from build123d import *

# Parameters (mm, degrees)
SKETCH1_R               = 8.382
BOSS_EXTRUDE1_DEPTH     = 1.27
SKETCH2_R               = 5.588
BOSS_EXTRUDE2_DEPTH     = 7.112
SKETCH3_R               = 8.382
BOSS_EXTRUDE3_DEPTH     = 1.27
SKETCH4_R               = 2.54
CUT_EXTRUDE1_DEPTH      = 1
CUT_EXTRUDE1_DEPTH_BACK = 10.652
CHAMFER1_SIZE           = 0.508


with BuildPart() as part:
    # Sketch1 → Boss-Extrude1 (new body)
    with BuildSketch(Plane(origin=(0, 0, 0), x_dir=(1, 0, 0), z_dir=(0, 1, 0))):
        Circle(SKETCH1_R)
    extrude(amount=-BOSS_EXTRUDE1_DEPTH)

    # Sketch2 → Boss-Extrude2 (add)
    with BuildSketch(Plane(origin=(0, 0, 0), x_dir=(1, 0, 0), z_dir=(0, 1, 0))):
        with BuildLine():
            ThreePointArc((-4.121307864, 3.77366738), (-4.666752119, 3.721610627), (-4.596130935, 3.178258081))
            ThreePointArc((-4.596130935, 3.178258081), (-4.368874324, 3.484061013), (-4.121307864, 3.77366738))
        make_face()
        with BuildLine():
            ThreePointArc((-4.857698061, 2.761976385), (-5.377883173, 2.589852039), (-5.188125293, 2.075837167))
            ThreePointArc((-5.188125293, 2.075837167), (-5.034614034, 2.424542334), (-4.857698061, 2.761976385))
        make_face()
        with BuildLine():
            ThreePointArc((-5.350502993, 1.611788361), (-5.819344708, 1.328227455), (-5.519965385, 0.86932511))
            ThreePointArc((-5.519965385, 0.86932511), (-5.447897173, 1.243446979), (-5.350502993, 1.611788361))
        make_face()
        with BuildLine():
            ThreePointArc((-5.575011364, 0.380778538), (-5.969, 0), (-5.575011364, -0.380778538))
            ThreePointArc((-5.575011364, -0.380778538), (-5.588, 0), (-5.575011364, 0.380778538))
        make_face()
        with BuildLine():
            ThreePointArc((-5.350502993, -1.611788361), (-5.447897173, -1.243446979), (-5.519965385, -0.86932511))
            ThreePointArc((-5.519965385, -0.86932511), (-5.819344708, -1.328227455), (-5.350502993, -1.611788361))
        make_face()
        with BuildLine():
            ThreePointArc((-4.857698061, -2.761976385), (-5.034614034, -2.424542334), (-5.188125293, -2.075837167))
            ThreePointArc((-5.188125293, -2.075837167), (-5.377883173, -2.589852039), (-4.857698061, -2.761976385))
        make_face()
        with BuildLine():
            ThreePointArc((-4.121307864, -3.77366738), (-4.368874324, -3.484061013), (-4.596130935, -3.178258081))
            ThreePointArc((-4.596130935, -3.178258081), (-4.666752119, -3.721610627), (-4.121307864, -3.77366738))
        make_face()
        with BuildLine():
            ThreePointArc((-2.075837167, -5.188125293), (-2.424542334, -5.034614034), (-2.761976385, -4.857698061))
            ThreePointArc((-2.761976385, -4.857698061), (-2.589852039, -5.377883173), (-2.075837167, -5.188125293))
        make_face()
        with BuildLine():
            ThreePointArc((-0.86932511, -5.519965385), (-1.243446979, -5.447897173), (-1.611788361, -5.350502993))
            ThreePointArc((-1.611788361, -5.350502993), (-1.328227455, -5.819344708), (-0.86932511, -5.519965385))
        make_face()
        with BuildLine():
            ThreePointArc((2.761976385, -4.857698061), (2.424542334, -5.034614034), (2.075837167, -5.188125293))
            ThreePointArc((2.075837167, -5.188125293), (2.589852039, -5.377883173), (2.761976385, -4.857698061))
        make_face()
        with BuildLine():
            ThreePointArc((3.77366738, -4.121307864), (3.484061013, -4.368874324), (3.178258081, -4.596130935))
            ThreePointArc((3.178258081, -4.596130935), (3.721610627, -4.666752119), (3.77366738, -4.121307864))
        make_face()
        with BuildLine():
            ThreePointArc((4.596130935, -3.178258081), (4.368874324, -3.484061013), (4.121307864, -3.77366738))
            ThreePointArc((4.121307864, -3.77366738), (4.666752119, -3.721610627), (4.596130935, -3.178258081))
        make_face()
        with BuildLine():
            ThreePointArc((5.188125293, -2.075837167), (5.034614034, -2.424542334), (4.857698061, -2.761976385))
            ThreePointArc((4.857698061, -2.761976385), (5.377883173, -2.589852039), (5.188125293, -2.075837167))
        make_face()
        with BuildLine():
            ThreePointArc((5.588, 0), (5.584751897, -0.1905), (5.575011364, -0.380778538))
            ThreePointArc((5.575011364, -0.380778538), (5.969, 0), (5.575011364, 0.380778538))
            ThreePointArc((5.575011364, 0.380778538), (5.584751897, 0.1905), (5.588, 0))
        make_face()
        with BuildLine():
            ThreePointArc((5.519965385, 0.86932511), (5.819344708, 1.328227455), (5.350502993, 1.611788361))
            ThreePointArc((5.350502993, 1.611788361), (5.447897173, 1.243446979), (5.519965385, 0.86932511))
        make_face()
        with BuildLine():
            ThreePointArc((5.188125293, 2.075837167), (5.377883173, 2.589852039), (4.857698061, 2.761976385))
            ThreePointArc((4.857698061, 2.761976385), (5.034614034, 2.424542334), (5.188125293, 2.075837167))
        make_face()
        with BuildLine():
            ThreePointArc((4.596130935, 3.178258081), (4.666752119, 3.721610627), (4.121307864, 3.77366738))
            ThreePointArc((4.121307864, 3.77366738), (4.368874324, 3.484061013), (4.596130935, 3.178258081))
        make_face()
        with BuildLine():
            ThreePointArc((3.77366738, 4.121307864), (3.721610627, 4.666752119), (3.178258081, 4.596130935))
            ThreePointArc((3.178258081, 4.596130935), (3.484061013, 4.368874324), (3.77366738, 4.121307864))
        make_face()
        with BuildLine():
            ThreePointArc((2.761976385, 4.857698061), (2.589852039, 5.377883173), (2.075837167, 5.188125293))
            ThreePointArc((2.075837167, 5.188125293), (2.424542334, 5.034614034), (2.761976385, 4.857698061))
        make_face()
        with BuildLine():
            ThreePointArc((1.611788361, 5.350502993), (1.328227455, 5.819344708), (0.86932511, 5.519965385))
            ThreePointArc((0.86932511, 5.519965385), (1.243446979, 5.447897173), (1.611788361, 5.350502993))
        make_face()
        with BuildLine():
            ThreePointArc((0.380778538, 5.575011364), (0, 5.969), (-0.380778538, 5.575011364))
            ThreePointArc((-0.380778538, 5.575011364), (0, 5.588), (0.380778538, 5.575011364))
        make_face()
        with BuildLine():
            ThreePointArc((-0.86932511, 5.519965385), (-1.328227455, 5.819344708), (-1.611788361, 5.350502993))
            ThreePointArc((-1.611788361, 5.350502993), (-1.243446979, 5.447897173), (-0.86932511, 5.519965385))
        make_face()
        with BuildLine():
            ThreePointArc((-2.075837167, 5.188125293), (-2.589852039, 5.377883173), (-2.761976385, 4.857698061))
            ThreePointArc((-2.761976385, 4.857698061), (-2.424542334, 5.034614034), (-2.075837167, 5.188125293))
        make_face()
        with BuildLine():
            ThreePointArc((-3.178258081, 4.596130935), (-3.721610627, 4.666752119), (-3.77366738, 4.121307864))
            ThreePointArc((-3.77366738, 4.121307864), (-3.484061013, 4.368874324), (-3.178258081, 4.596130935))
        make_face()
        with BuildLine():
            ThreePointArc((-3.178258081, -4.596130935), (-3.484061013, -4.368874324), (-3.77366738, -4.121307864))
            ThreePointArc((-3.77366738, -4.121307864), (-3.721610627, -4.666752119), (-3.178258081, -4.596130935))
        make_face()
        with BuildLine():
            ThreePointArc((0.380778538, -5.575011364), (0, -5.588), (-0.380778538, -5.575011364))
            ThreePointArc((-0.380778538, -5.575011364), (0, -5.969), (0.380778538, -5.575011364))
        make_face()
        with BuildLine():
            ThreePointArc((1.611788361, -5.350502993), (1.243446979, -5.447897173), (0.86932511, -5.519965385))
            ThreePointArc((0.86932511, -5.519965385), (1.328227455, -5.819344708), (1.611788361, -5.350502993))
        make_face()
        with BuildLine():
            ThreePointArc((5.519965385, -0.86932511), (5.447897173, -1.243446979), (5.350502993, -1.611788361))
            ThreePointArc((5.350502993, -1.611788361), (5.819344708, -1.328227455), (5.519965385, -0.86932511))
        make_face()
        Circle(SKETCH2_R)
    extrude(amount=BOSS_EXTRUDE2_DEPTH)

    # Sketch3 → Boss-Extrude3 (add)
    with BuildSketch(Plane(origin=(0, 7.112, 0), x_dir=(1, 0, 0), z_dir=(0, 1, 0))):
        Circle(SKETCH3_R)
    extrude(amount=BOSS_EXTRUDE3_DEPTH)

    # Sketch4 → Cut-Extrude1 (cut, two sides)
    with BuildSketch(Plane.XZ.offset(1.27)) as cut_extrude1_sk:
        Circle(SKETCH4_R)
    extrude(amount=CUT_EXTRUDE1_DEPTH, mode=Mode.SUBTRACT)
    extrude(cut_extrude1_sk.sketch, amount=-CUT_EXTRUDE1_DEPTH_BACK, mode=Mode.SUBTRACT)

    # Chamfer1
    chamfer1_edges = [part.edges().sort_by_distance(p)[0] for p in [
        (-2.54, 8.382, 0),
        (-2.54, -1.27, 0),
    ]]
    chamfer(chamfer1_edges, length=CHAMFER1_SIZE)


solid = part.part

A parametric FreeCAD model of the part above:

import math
import FreeCAD as App
import Part
import Sketcher
from FreeCAD import Vector
Q = App.Units.Quantity


def edges_at(feature, points):
    """Names of the edges that pass closest to the given points."""
    edges = feature.Shape.Edges
    near = lambda p: min(range(len(edges)), key=lambda i: edges[i].distToShape(Part.Vertex(*p))[0])
    return sorted({f"Edge{near(p) + 1}" for p in points})

doc = App.newDocument("Part")
body = doc.addObject("PartDesign::Body", "Body")

# Sketch on XZ plane
sketch1 = body.newObject("Sketcher::SketchObject", "Sketch")
sketch1.AttachmentSupport = (doc.getObject("XZ_Plane"), [""])
sketch1.MapMode = "FlatFace"
sketch1.addGeometry(Part.Circle(Vector(0, 0, 0), Vector(0, 0, 1), 8), False)
sketch1.addConstraint(Sketcher.Constraint("Coincident", 0, 3, -1, 1))
sketch1.addConstraint(Sketcher.Constraint("Diameter", 0, Q("0.66 in")))
pad1 = body.newObject("PartDesign::Pad", "Pad")
pad1.Profile = sketch1
pad1.Length = Q("0.05 in")

# Sketch on XZ plane
sketch2 = body.newObject("Sketcher::SketchObject", "Sketch001")
sketch2.AttachmentSupport = (doc.getObject("XZ_Plane"), [""])
sketch2.MapMode = "FlatFace"
sketch2.addGeometry(Part.ArcOfCircle(Part.Circle(Vector(-4.37, -3.48, 0), Vector(0, 0, 1), 0.38), math.radians(127), math.radians(311)), False)
sketch2.addGeometry(Part.ArcOfCircle(Part.Circle(Vector(0, 0, 0), Vector(0, 0, 1), 5.59), math.radians(-150.38), math.radians(-145.34)), False)
sketch2.addGeometry(Part.ArcOfCircle(Part.Circle(Vector(-5.03, -2.42, 0), Vector(0, 0, 1), 0.38), math.radians(114), math.radians(298)), False)
sketch2.addGeometry(Part.ArcOfCircle(Part.Circle(Vector(0, 0, 0), Vector(0, 0, 1), 5.59), math.radians(-163.24), math.radians(-158.19)), False)
sketch2.addGeometry(Part.ArcOfCircle(Part.Circle(Vector(-5.45, -1.24, 0), Vector(0, 0, 1), 0.38), math.radians(101), math.radians(285)), False)
sketch2.addGeometry(Part.ArcOfCircle(Part.Circle(Vector(0, 0, 0), Vector(0, 0, 1), 5.59), math.radians(-176.09), math.radians(-171.05)), False)
sketch2.addGeometry(Part.ArcOfCircle(Part.Circle(Vector(-5.59, 0, 0), Vector(0, 0, 1), 0.38), math.radians(88), math.radians(272)), False)
sketch2.addGeometry(Part.ArcOfCircle(Part.Circle(Vector(0, 0, 0), Vector(0, 0, 1), 5.59), math.radians(171.05), math.radians(176.09)), False)
sketch2.addGeometry(Part.ArcOfCircle(Part.Circle(Vector(-5.45, 1.24, 0), Vector(0, 0, 1), 0.38), math.radians(75), math.radians(259)), False)
sketch2.addGeometry(Part.ArcOfCircle(Part.Circle(Vector(0, 0, 0), Vector(0, 0, 1), 5.59), math.radians(158.19), math.radians(163.24)), False)
sketch2.addGeometry(Part.ArcOfCircle(Part.Circle(Vector(-5.03, 2.42, 0), Vector(0, 0, 1), 0.38), math.radians(62), math.radians(246)), False)
sketch2.addGeometry(Part.ArcOfCircle(Part.Circle(Vector(0, 0, 0), Vector(0, 0, 1), 5.59), math.radians(145.34), math.radians(150.38)), False)
sketch2.addGeometry(Part.ArcOfCircle(Part.Circle(Vector(-4.37, 3.48, 0), Vector(0, 0, 1), 0.38), math.radians(49), math.radians(233)), False)
sketch2.addGeometry(Part.ArcOfCircle(Part.Circle(Vector(0, 0, 0), Vector(0, 0, 1), 5.59), math.radians(132.48), math.radians(137.52)), False)
sketch2.addGeometry(Part.ArcOfCircle(Part.Circle(Vector(-3.48, 4.37, 0), Vector(0, 0, 1), 0.38), math.radians(37), math.radians(221)), False)
sketch2.addGeometry(Part.ArcOfCircle(Part.Circle(Vector(0, 0, 0), Vector(0, 0, 1), 5.59), math.radians(119.62), math.radians(124.66)), False)
sketch2.addGeometry(Part.ArcOfCircle(Part.Circle(Vector(-2.42, 5.03, 0), Vector(0, 0, 1), 0.38), math.radians(24), math.radians(208)), False)
sketch2.addGeometry(Part.ArcOfCircle(Part.Circle(Vector(0, 0, 0), Vector(0, 0, 1), 5.59), math.radians(106.76), math.radians(111.81)), False)
sketch2.addGeometry(Part.ArcOfCircle(Part.Circle(Vector(-1.24, 5.45, 0), Vector(0, 0, 1), 0.38), math.radians(11), math.radians(195)), False)
sketch2.addGeometry(Part.ArcOfCircle(Part.Circle(Vector(0, 0, 0), Vector(0, 0, 1), 5.59), math.radians(93.91), math.radians(98.95)), False)
sketch2.addGeometry(Part.ArcOfCircle(Part.Circle(Vector(0, 5.59, 0), Vector(0, 0, 1), 0.38), math.radians(-2), math.radians(182)), False)
sketch2.addGeometry(Part.ArcOfCircle(Part.Circle(Vector(0, 0, 0), Vector(0, 0, 1), 5.59), math.radians(81.05), math.radians(86.09)), False)
sketch2.addGeometry(Part.ArcOfCircle(Part.Circle(Vector(1.24, 5.45, 0), Vector(0, 0, 1), 0.38), math.radians(-15), math.radians(169)), False)
sketch2.addGeometry(Part.ArcOfCircle(Part.Circle(Vector(0, 0, 0), Vector(0, 0, 1), 5.59), math.radians(68.19), math.radians(73.24)), False)
sketch2.addGeometry(Part.ArcOfCircle(Part.Circle(Vector(2.42, 5.03, 0), Vector(0, 0, 1), 0.38), math.radians(-28), math.radians(156)), False)
sketch2.addGeometry(Part.ArcOfCircle(Part.Circle(Vector(0, 0, 0), Vector(0, 0, 1), 5.59), math.radians(55.34), math.radians(60.38)), False)
sketch2.addGeometry(Part.ArcOfCircle(Part.Circle(Vector(3.48, 4.37, 0), Vector(0, 0, 1), 0.38), math.radians(-41), math.radians(143)), False)
sketch2.addGeometry(Part.ArcOfCircle(Part.Circle(Vector(0, 0, 0), Vector(0, 0, 1), 5.59), math.radians(42.48), math.radians(47.52)), False)
sketch2.addGeometry(Part.ArcOfCircle(Part.Circle(Vector(4.37, 3.48, 0), Vector(0, 0, 1), 0.38), math.radians(-53), math.radians(131)), False)
sketch2.addGeometry(Part.ArcOfCircle(Part.Circle(Vector(0, 0, 0), Vector(0, 0, 1), 5.59), math.radians(29.62), math.radians(34.66)), False)
sketch2.addGeometry(Part.ArcOfCircle(Part.Circle(Vector(5.03, 2.42, 0), Vector(0, 0, 1), 0.38), math.radians(-66), math.radians(118)), False)
sketch2.addGeometry(Part.ArcOfCircle(Part.Circle(Vector(0, 0, 0), Vector(0, 0, 1), 5.59), math.radians(16.76), math.radians(21.81)), False)
sketch2.addGeometry(Part.ArcOfCircle(Part.Circle(Vector(5.45, 1.24, 0), Vector(0, 0, 1), 0.38), math.radians(-79), math.radians(105)), False)
sketch2.addGeometry(Part.ArcOfCircle(Part.Circle(Vector(0, 0, 0), Vector(0, 0, 1), 5.59), math.radians(3.91), math.radians(8.95)), False)
sketch2.addGeometry(Part.ArcOfCircle(Part.Circle(Vector(5.59, 0, 0), Vector(0, 0, 1), 0.38), math.radians(-92), math.radians(92)), False)
sketch2.addGeometry(Part.ArcOfCircle(Part.Circle(Vector(0, 0, 0), Vector(0, 0, 1), 5.59), math.radians(-8.95), math.radians(-3.91)), False)
sketch2.addGeometry(Part.ArcOfCircle(Part.Circle(Vector(5.45, -1.24, 0), Vector(0, 0, 1), 0.38), math.radians(-105), math.radians(79)), False)
sketch2.addGeometry(Part.ArcOfCircle(Part.Circle(Vector(0, 0, 0), Vector(0, 0, 1), 5.59), math.radians(-21.81), math.radians(-16.76)), False)
sketch2.addGeometry(Part.ArcOfCircle(Part.Circle(Vector(5.03, -2.42, 0), Vector(0, 0, 1), 0.38), math.radians(-118), math.radians(66)), False)
sketch2.addGeometry(Part.ArcOfCircle(Part.Circle(Vector(0, 0, 0), Vector(0, 0, 1), 5.59), math.radians(-34.66), math.radians(-29.62)), False)
sketch2.addGeometry(Part.ArcOfCircle(Part.Circle(Vector(4.37, -3.48, 0), Vector(0, 0, 1), 0.38), math.radians(-131), math.radians(53)), False)
sketch2.addGeometry(Part.ArcOfCircle(Part.Circle(Vector(0, 0, 0), Vector(0, 0, 1), 5.59), math.radians(-47.52), math.radians(-42.48)), False)
sketch2.addGeometry(Part.ArcOfCircle(Part.Circle(Vector(3.48, -4.37, 0), Vector(0, 0, 1), 0.38), math.radians(-143), math.radians(41)), False)
sketch2.addGeometry(Part.ArcOfCircle(Part.Circle(Vector(0, 0, 0), Vector(0, 0, 1), 5.59), math.radians(-60.38), math.radians(-55.34)), False)
sketch2.addGeometry(Part.ArcOfCircle(Part.Circle(Vector(2.42, -5.03, 0), Vector(0, 0, 1), 0.38), math.radians(-156), math.radians(28)), False)
sketch2.addGeometry(Part.ArcOfCircle(Part.Circle(Vector(0, 0, 0), Vector(0, 0, 1), 5.59), math.radians(-73.24), math.radians(-68.19)), False)
sketch2.addGeometry(Part.ArcOfCircle(Part.Circle(Vector(1.24, -5.45, 0), Vector(0, 0, 1), 0.38), math.radians(-169), math.radians(15)), False)
sketch2.addGeometry(Part.ArcOfCircle(Part.Circle(Vector(0, 0, 0), Vector(0, 0, 1), 5.59), math.radians(-86.09), math.radians(-81.05)), False)
sketch2.addGeometry(Part.ArcOfCircle(Part.Circle(Vector(0, -5.59, 0), Vector(0, 0, 1), 0.38), math.radians(178), math.radians(362)), False)
sketch2.addGeometry(Part.ArcOfCircle(Part.Circle(Vector(0, 0, 0), Vector(0, 0, 1), 5.59), math.radians(-98.95), math.radians(-93.91)), False)
sketch2.addGeometry(Part.ArcOfCircle(Part.Circle(Vector(-1.24, -5.45, 0), Vector(0, 0, 1), 0.38), math.radians(165), math.radians(349)), False)
sketch2.addGeometry(Part.ArcOfCircle(Part.Circle(Vector(0, 0, 0), Vector(0, 0, 1), 5.59), math.radians(-111.81), math.radians(-106.76)), False)
sketch2.addGeometry(Part.ArcOfCircle(Part.Circle(Vector(-2.42, -5.03, 0), Vector(0, 0, 1), 0.38), math.radians(152), math.radians(336)), False)
sketch2.addGeometry(Part.ArcOfCircle(Part.Circle(Vector(0, 0, 0), Vector(0, 0, 1), 5.59), math.radians(-124.66), math.radians(-119.62)), False)
sketch2.addGeometry(Part.ArcOfCircle(Part.Circle(Vector(-3.48, -4.37, 0), Vector(0, 0, 1), 0.38), math.radians(139), math.radians(323)), False)
sketch2.addGeometry(Part.ArcOfCircle(Part.Circle(Vector(0, 0, 0), Vector(0, 0, 1), 5.59), math.radians(-137.52), math.radians(-132.48)), False)
sketch2.addConstraint(Sketcher.Constraint("Coincident", 0, 1, 1, 2))
sketch2.addConstraint(Sketcher.Constraint("Coincident", 1, 1, 2, 2))
sketch2.addConstraint(Sketcher.Constraint("Coincident", 2, 1, 3, 2))
sketch2.addConstraint(Sketcher.Constraint("Coincident", 3, 1, 4, 2))
sketch2.addConstraint(Sketcher.Constraint("Coincident", 4, 1, 5, 2))
sketch2.addConstraint(Sketcher.Constraint("Coincident", 5, 1, 6, 2))
sketch2.addConstraint(Sketcher.Constraint("Coincident", 6, 1, 7, 2))
sketch2.addConstraint(Sketcher.Constraint("Coincident", 7, 1, 8, 2))
sketch2.addConstraint(Sketcher.Constraint("Coincident", 8, 1, 9, 2))
sketch2.addConstraint(Sketcher.Constraint("Coincident", 9, 1, 10, 2))
sketch2.addConstraint(Sketcher.Constraint("Coincident", 10, 1, 11, 2))
sketch2.addConstraint(Sketcher.Constraint("Coincident", 11, 1, 12, 2))
sketch2.addConstraint(Sketcher.Constraint("Coincident", 12, 1, 13, 2))
sketch2.addConstraint(Sketcher.Constraint("Coincident", 13, 1, 14, 2))
sketch2.addConstraint(Sketcher.Constraint("Coincident", 14, 1, 15, 2))
sketch2.addConstraint(Sketcher.Constraint("Coincident", 15, 1, 16, 2))
sketch2.addConstraint(Sketcher.Constraint("Coincident", 16, 1, 17, 2))
sketch2.addConstraint(Sketcher.Constraint("Coincident", 17, 1, 18, 2))
sketch2.addConstraint(Sketcher.Constraint("Coincident", 18, 1, 19, 2))
sketch2.addConstraint(Sketcher.Constraint("Coincident", 19, 1, 20, 2))
sketch2.addConstraint(Sketcher.Constraint("Coincident", 20, 1, 21, 2))
sketch2.addConstraint(Sketcher.Constraint("Coincident", 21, 1, 22, 2))
sketch2.addConstraint(Sketcher.Constraint("Coincident", 22, 1, 23, 2))
sketch2.addConstraint(Sketcher.Constraint("Coincident", 23, 1, 24, 2))
sketch2.addConstraint(Sketcher.Constraint("Coincident", 24, 1, 25, 2))
sketch2.addConstraint(Sketcher.Constraint("Coincident", 25, 1, 26, 2))
sketch2.addConstraint(Sketcher.Constraint("Coincident", 26, 1, 27, 2))
sketch2.addConstraint(Sketcher.Constraint("Coincident", 27, 1, 28, 2))
sketch2.addConstraint(Sketcher.Constraint("Coincident", 28, 1, 29, 2))
sketch2.addConstraint(Sketcher.Constraint("Coincident", 29, 1, 30, 2))
sketch2.addConstraint(Sketcher.Constraint("Coincident", 30, 1, 31, 2))
sketch2.addConstraint(Sketcher.Constraint("Coincident", 31, 1, 32, 2))
sketch2.addConstraint(Sketcher.Constraint("Coincident", 32, 1, 33, 2))
sketch2.addConstraint(Sketcher.Constraint("Coincident", 33, 1, 34, 2))
sketch2.addConstraint(Sketcher.Constraint("Coincident", 34, 1, 35, 2))
sketch2.addConstraint(Sketcher.Constraint("Coincident", 35, 1, 36, 2))
sketch2.addConstraint(Sketcher.Constraint("Coincident", 36, 1, 37, 2))
sketch2.addConstraint(Sketcher.Constraint("Coincident", 37, 1, 38, 2))
sketch2.addConstraint(Sketcher.Constraint("Coincident", 38, 1, 39, 2))
sketch2.addConstraint(Sketcher.Constraint("Coincident", 39, 1, 40, 2))
sketch2.addConstraint(Sketcher.Constraint("Coincident", 40, 1, 41, 2))
sketch2.addConstraint(Sketcher.Constraint("Coincident", 41, 1, 42, 2))
sketch2.addConstraint(Sketcher.Constraint("Coincident", 42, 1, 43, 2))
sketch2.addConstraint(Sketcher.Constraint("Coincident", 43, 1, 44, 2))
sketch2.addConstraint(Sketcher.Constraint("Coincident", 44, 1, 45, 2))
sketch2.addConstraint(Sketcher.Constraint("Coincident", 45, 1, 46, 2))
sketch2.addConstraint(Sketcher.Constraint("Coincident", 46, 1, 47, 2))
sketch2.addConstraint(Sketcher.Constraint("Coincident", 47, 1, 48, 2))
sketch2.addConstraint(Sketcher.Constraint("Coincident", 48, 1, 49, 2))
sketch2.addConstraint(Sketcher.Constraint("Coincident", 49, 1, 50, 2))
sketch2.addConstraint(Sketcher.Constraint("Coincident", 50, 1, 51, 2))
sketch2.addConstraint(Sketcher.Constraint("Coincident", 51, 1, 52, 2))
sketch2.addConstraint(Sketcher.Constraint("Coincident", 52, 1, 53, 2))
sketch2.addConstraint(Sketcher.Constraint("Coincident", 53, 1, 54, 2))
sketch2.addConstraint(Sketcher.Constraint("Coincident", 54, 1, 55, 2))
sketch2.addConstraint(Sketcher.Constraint("Coincident", 55, 1, 0, 2))
sketch2.addConstraint(Sketcher.Constraint("Coincident", 1, 3, -1, 1))
sketch2.addConstraint(Sketcher.Constraint("Coincident", 3, 3, -1, 1))
sketch2.addConstraint(Sketcher.Constraint("Coincident", 5, 3, -1, 1))
sketch2.addConstraint(Sketcher.Constraint("Coincident", 7, 3, -1, 1))
sketch2.addConstraint(Sketcher.Constraint("Coincident", 9, 3, -1, 1))
sketch2.addConstraint(Sketcher.Constraint("Coincident", 11, 3, -1, 1))
sketch2.addConstraint(Sketcher.Constraint("Coincident", 13, 3, -1, 1))
sketch2.addConstraint(Sketcher.Constraint("Coincident", 15, 3, -1, 1))
sketch2.addConstraint(Sketcher.Constraint("Coincident", 17, 3, -1, 1))
sketch2.addConstraint(Sketcher.Constraint("Coincident", 19, 3, -1, 1))
sketch2.addConstraint(Sketcher.Constraint("Coincident", 21, 3, -1, 1))
sketch2.addConstraint(Sketcher.Constraint("Coincident", 23, 3, -1, 1))
sketch2.addConstraint(Sketcher.Constraint("Coincident", 25, 3, -1, 1))
sketch2.addConstraint(Sketcher.Constraint("Coincident", 27, 3, -1, 1))
sketch2.addConstraint(Sketcher.Constraint("Coincident", 29, 3, -1, 1))
sketch2.addConstraint(Sketcher.Constraint("Coincident", 31, 3, -1, 1))
sketch2.addConstraint(Sketcher.Constraint("Coincident", 33, 3, -1, 1))
sketch2.addConstraint(Sketcher.Constraint("Coincident", 35, 3, -1, 1))
sketch2.addConstraint(Sketcher.Constraint("Coincident", 37, 3, -1, 1))
sketch2.addConstraint(Sketcher.Constraint("Coincident", 39, 3, -1, 1))
sketch2.addConstraint(Sketcher.Constraint("Coincident", 41, 3, -1, 1))
sketch2.addConstraint(Sketcher.Constraint("Coincident", 43, 3, -1, 1))
sketch2.addConstraint(Sketcher.Constraint("Coincident", 45, 3, -1, 1))
sketch2.addConstraint(Sketcher.Constraint("Coincident", 47, 3, -1, 1))
sketch2.addConstraint(Sketcher.Constraint("Coincident", 49, 3, -1, 1))
sketch2.addConstraint(Sketcher.Constraint("Coincident", 51, 3, -1, 1))
sketch2.addConstraint(Sketcher.Constraint("Coincident", 53, 3, -1, 1))
sketch2.addConstraint(Sketcher.Constraint("Coincident", 55, 3, -1, 1))
sketch2.addConstraint(Sketcher.Constraint("Equal", 0, 2))
sketch2.addConstraint(Sketcher.Constraint("Equal", 1, 3))
sketch2.addConstraint(Sketcher.Constraint("Equal", 2, 4))
sketch2.addConstraint(Sketcher.Constraint("Equal", 3, 5))
sketch2.addConstraint(Sketcher.Constraint("Equal", 4, 6))
sketch2.addConstraint(Sketcher.Constraint("Equal", 5, 7))
sketch2.addConstraint(Sketcher.Constraint("Equal", 6, 8))
sketch2.addConstraint(Sketcher.Constraint("Equal", 7, 9))
sketch2.addConstraint(Sketcher.Constraint("Equal", 8, 10))
sketch2.addConstraint(Sketcher.Constraint("Equal", 9, 11))
sketch2.addConstraint(Sketcher.Constraint("Equal", 10, 12))
sketch2.addConstraint(Sketcher.Constraint("Equal", 11, 13))
sketch2.addConstraint(Sketcher.Constraint("Equal", 12, 14))
sketch2.addConstraint(Sketcher.Constraint("Equal", 13, 15))
sketch2.addConstraint(Sketcher.Constraint("Equal", 14, 16))
sketch2.addConstraint(Sketcher.Constraint("Equal", 15, 17))
sketch2.addConstraint(Sketcher.Constraint("Equal", 16, 18))
sketch2.addConstraint(Sketcher.Constraint("Equal", 17, 19))
sketch2.addConstraint(Sketcher.Constraint("Equal", 18, 20))
sketch2.addConstraint(Sketcher.Constraint("Equal", 19, 21))
sketch2.addConstraint(Sketcher.Constraint("Equal", 20, 22))
sketch2.addConstraint(Sketcher.Constraint("Equal", 21, 23))
sketch2.addConstraint(Sketcher.Constraint("Equal", 22, 24))
sketch2.addConstraint(Sketcher.Constraint("Equal", 23, 25))
sketch2.addConstraint(Sketcher.Constraint("Equal", 24, 26))
sketch2.addConstraint(Sketcher.Constraint("Equal", 25, 27))
sketch2.addConstraint(Sketcher.Constraint("Equal", 26, 28))
sketch2.addConstraint(Sketcher.Constraint("Equal", 27, 29))
sketch2.addConstraint(Sketcher.Constraint("Equal", 28, 30))
sketch2.addConstraint(Sketcher.Constraint("Equal", 29, 31))
sketch2.addConstraint(Sketcher.Constraint("Equal", 30, 32))
sketch2.addConstraint(Sketcher.Constraint("Equal", 31, 33))
sketch2.addConstraint(Sketcher.Constraint("Equal", 32, 34))
sketch2.addConstraint(Sketcher.Constraint("Equal", 33, 35))
sketch2.addConstraint(Sketcher.Constraint("Equal", 34, 36))
sketch2.addConstraint(Sketcher.Constraint("Equal", 35, 37))
sketch2.addConstraint(Sketcher.Constraint("Equal", 36, 38))
sketch2.addConstraint(Sketcher.Constraint("Equal", 37, 39))
sketch2.addConstraint(Sketcher.Constraint("Equal", 38, 40))
sketch2.addConstraint(Sketcher.Constraint("Equal", 39, 41))
sketch2.addConstraint(Sketcher.Constraint("Equal", 40, 42))
sketch2.addConstraint(Sketcher.Constraint("Equal", 41, 43))
sketch2.addConstraint(Sketcher.Constraint("Equal", 42, 44))
sketch2.addConstraint(Sketcher.Constraint("Equal", 43, 45))
sketch2.addConstraint(Sketcher.Constraint("Equal", 44, 46))
sketch2.addConstraint(Sketcher.Constraint("Equal", 45, 47))
sketch2.addConstraint(Sketcher.Constraint("Equal", 46, 48))
sketch2.addConstraint(Sketcher.Constraint("Equal", 47, 49))
sketch2.addConstraint(Sketcher.Constraint("Equal", 48, 50))
sketch2.addConstraint(Sketcher.Constraint("Equal", 49, 51))
sketch2.addConstraint(Sketcher.Constraint("Equal", 50, 52))
sketch2.addConstraint(Sketcher.Constraint("Equal", 51, 53))
sketch2.addConstraint(Sketcher.Constraint("Equal", 52, 54))
sketch2.addConstraint(Sketcher.Constraint("Equal", 53, 55))
sketch2.addConstraint(Sketcher.Constraint("Symmetric", 0, 3, 28, 3, -1, 1))
sketch2.addConstraint(Sketcher.Constraint("Symmetric", 2, 3, 30, 3, -1, 1))
sketch2.addConstraint(Sketcher.Constraint("Symmetric", 4, 3, 32, 3, -1, 1))
sketch2.addConstraint(Sketcher.Constraint("Symmetric", 6, 3, 34, 3, -1, 1))
sketch2.addConstraint(Sketcher.Constraint("Symmetric", 8, 3, 36, 3, -1, 1))
sketch2.addConstraint(Sketcher.Constraint("Symmetric", 10, 3, 38, 3, -1, 1))
sketch2.addConstraint(Sketcher.Constraint("Symmetric", 12, 3, 40, 3, -1, 1))
sketch2.addConstraint(Sketcher.Constraint("Symmetric", 14, 3, 42, 3, -1, 1))
sketch2.addConstraint(Sketcher.Constraint("Symmetric", 16, 3, 44, 3, -1, 1))
sketch2.addConstraint(Sketcher.Constraint("Symmetric", 18, 3, 46, 3, -1, 1))
sketch2.addConstraint(Sketcher.Constraint("Symmetric", 20, 3, 48, 3, -1, 1))
sketch2.addConstraint(Sketcher.Constraint("Symmetric", 22, 3, 50, 3, -1, 1))
sketch2.addConstraint(Sketcher.Constraint("Symmetric", 24, 3, 52, 3, -1, 1))
sketch2.addConstraint(Sketcher.Constraint("Symmetric", 26, 3, 54, 3, -1, 1))
sketch2.addConstraint(Sketcher.Constraint("Symmetric", 18, 3, 22, 3, -2))
sketch2.addConstraint(Sketcher.Constraint("Symmetric", 16, 3, 24, 3, -2))
sketch2.addConstraint(Sketcher.Constraint("Symmetric", 14, 3, 26, 3, -2))
sketch2.addConstraint(Sketcher.Constraint("Symmetric", 12, 3, 28, 3, -2))
sketch2.addConstraint(Sketcher.Constraint("Symmetric", 10, 3, 30, 3, -2))
sketch2.addConstraint(Sketcher.Constraint("Symmetric", 8, 3, 32, 3, -2))
sketch2.addConstraint(Sketcher.Constraint("PointOnObject", 6, 3, -1))
sketch2.addConstraint(Sketcher.Constraint("PointOnObject", 20, 3, -2))
sketch2.addConstraint(Sketcher.Constraint("Radius", 1, Q("0.22 in")))
sketch2.addConstraint(Sketcher.Constraint("Radius", 0, Q("0.015 in")))
sketch2.addConstraint(Sketcher.Constraint("DistanceX", 6, 3, -1, 1, Q("0.22 in")))
sketch2.addConstraint(Sketcher.Constraint("DistanceY", -1, 1, 20, 3, Q("0.22 in")))
sketch2.addConstraint(Sketcher.Constraint("DistanceX", 1, 1, -1, 1, 4.857698))
sketch2.addConstraint(Sketcher.Constraint("DistanceY", -1, 1, 15, 1, 4.857698))
sketch2.addConstraint(Sketcher.Constraint("DistanceY", 0, 3, -1, 1, 3.484061))
sketch2.addConstraint(Sketcher.Constraint("DistanceX", 14, 3, -1, 1, 3.484061))
sketch2.addConstraint(Sketcher.Constraint("DistanceX", 0, 1, -1, 1, 4.596131))
sketch2.addConstraint(Sketcher.Constraint("DistanceY", 3, 1, -1, 1, 1.611788))
sketch2.addConstraint(Sketcher.Constraint("DistanceX", 14, 1, -1, 1, 3.178258))
sketch2.addConstraint(Sketcher.Constraint("DistanceX", 17, 1, -1, 1, 1.611788))
sketch2.addConstraint(Sketcher.Constraint("DistanceX", 2, 3, -1, 1, 5.034614))
sketch2.addConstraint(Sketcher.Constraint("DistanceX", 4, 3, -1, 1, 5.447897))
sketch2.addConstraint(Sketcher.Constraint("DistanceX", 16, 3, -1, 1, 2.424542))
sketch2.addConstraint(Sketcher.Constraint("DistanceX", 18, 3, -1, 1, 1.243447))
pad2 = body.newObject("PartDesign::Pad", "Pad001")
pad2.Profile = sketch2
pad2.Length = Q("0.28 in")
pad2.Reversed = True

# Sketch on XZ plane
sketch3 = body.newObject("Sketcher::SketchObject", "Sketch002")
sketch3.AttachmentSupport = (doc.getObject("XZ_Plane"), [""])
sketch3.MapMode = "FlatFace"
sketch3.AttachmentOffset = App.Placement(Vector(0, 0, -0.28 * 25.4), App.Rotation())
sketch3.addGeometry(Part.Circle(Vector(0, 0, 0), Vector(0, 0, 1), 8), False)
sketch3.addConstraint(Sketcher.Constraint("Coincident", 0, 3, -1, 1))
sketch3.addConstraint(Sketcher.Constraint("Diameter", 0, Q("0.66 in")))
pad3 = body.newObject("PartDesign::Pad", "Pad002")
pad3.Profile = sketch3
pad3.Length = Q("0.05 in")
pad3.Reversed = True

# Sketch on XZ plane
sketch4 = body.newObject("Sketcher::SketchObject", "Sketch003")
sketch4.AttachmentSupport = (doc.getObject("XZ_Plane"), [""])
sketch4.MapMode = "FlatFace"
sketch4.AttachmentOffset = App.Placement(Vector(0, 0, 0.05 * 25.4), App.Rotation())
sketch4.addGeometry(Part.Circle(Vector(0, 0, 0), Vector(0, 0, 1), 2.5), False)
sketch4.addConstraint(Sketcher.Constraint("Coincident", 0, 3, -1, 1))
sketch4.addConstraint(Sketcher.Constraint("Diameter", 0, Q("0.2 in")))
pocket1 = body.newObject("PartDesign::Pocket", "Pocket")
pocket1.Profile = sketch4
pocket1.Type = "ThroughAll"
pocket1.Midplane = True
doc.recompute()

chamfer = body.newObject("PartDesign::Chamfer", "Chamfer")
chamfer.Base = (pocket1, edges_at(pocket1, [(-2.54, 8.382, 0), (-2.54, -1.27, 0)]))
chamfer.Size = Q("0.02 in")

doc.recompute()
